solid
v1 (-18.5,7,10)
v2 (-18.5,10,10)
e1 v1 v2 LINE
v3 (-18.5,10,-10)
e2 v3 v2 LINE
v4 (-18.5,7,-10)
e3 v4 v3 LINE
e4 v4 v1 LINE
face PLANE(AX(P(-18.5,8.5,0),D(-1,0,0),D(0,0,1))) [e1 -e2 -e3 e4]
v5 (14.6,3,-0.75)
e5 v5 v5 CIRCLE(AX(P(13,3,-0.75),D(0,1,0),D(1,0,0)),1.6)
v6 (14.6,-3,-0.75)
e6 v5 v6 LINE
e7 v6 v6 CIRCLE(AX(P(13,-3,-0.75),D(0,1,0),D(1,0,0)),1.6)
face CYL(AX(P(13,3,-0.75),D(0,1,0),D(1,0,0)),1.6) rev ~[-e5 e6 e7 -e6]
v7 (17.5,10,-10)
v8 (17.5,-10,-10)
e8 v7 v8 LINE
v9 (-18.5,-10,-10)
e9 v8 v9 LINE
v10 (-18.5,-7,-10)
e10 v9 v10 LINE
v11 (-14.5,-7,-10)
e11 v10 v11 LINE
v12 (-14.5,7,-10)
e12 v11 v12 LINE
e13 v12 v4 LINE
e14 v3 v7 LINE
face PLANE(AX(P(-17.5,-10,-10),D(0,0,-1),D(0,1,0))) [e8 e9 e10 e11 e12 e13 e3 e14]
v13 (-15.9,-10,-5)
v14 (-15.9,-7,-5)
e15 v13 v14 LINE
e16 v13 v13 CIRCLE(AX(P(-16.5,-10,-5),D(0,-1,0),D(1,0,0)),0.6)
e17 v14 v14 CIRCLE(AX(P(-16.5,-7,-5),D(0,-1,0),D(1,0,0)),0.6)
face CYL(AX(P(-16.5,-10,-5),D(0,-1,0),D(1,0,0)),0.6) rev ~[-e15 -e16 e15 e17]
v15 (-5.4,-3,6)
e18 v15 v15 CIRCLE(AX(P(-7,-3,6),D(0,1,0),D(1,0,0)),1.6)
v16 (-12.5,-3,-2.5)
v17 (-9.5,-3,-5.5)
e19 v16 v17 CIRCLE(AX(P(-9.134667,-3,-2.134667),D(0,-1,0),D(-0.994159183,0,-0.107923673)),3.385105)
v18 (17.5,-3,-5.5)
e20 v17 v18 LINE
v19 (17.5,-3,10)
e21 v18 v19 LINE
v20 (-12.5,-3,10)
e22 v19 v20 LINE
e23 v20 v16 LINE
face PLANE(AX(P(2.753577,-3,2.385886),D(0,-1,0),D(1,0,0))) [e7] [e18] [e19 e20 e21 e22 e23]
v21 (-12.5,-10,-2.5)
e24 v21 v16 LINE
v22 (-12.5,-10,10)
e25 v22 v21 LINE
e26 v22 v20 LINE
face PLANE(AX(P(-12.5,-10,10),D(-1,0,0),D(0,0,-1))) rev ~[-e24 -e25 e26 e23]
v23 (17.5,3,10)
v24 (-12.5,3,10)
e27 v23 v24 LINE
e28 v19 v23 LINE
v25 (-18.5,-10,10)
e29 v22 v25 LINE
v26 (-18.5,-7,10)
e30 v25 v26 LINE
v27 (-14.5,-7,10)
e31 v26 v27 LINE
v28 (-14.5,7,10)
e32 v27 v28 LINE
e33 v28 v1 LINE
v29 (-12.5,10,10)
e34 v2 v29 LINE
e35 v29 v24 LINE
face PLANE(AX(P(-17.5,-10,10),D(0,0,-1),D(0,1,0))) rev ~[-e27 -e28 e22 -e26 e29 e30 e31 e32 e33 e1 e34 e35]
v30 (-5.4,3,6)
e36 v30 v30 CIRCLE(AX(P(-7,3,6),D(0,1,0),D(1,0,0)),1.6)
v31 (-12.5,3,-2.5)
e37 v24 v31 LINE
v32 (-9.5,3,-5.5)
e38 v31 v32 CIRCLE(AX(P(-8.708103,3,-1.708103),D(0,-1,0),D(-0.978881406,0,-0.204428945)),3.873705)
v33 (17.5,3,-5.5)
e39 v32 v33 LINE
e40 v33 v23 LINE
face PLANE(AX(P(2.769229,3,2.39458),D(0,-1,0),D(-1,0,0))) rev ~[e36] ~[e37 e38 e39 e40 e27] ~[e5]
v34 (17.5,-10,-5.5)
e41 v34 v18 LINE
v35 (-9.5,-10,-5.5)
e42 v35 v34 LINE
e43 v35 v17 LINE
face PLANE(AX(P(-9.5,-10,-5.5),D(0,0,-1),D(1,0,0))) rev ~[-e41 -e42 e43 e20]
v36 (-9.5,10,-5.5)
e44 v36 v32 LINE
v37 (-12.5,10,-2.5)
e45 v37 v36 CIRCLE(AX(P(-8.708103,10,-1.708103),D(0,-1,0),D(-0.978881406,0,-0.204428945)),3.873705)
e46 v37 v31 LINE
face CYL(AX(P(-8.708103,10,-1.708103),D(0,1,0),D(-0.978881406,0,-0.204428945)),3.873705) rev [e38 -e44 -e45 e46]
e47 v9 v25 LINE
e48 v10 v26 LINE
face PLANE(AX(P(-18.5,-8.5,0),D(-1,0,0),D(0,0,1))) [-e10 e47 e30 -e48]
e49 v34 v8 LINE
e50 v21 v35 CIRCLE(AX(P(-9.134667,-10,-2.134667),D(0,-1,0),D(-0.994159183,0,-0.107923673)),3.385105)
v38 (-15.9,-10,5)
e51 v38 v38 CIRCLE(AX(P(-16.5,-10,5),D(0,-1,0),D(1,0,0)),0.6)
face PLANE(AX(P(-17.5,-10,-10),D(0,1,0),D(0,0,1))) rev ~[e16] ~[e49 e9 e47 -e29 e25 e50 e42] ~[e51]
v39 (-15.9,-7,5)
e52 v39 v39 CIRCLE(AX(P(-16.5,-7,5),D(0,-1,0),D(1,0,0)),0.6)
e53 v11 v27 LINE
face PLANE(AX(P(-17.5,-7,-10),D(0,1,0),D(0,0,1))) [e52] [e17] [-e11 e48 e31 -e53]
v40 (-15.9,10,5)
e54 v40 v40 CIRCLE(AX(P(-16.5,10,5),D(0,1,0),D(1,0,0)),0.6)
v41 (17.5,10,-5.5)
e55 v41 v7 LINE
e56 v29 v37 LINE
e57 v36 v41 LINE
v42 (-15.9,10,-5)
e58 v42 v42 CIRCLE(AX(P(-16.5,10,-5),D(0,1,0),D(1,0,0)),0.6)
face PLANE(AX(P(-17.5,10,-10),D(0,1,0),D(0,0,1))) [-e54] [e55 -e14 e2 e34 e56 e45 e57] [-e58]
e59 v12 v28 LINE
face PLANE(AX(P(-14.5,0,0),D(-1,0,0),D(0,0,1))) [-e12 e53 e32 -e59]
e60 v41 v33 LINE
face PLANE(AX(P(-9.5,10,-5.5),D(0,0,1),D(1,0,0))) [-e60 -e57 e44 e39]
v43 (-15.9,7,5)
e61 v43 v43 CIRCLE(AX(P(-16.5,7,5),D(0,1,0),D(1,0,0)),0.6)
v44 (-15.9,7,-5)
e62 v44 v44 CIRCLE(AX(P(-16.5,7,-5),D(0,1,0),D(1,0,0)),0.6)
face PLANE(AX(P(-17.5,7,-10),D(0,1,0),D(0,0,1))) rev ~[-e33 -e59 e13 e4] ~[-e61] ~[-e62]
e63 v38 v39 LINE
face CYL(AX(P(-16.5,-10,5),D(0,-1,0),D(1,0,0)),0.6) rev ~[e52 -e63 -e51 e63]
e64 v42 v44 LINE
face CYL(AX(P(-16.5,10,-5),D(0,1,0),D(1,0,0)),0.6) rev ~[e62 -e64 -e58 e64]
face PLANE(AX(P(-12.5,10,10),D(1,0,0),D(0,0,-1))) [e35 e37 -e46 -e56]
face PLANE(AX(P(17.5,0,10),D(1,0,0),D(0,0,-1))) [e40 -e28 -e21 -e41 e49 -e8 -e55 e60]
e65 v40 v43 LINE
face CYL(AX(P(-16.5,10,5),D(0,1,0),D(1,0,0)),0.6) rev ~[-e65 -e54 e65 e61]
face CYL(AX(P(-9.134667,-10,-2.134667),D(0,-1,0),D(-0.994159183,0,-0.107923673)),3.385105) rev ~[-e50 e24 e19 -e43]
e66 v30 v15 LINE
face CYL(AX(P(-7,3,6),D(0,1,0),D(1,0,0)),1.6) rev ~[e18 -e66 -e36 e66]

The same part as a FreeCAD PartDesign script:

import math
import FreeCAD as App
import Part
import Sketcher

V = App.Vector
Q = App.Units.Quantity


def add_polygon(sketch, points):
    """Adds a closed chain of lines whose ends are joined by coincident constraints."""
    first, n = sketch.GeometryCount, len(points)
    for a, b in zip(points, points[1:] + points[:1]):
        sketch.addGeometry(Part.LineSegment(App.Vector(*a, 0), App.Vector(*b, 0)), False)
    for i in range(n):
        sketch.addConstraint(Sketcher.Constraint("Coincident", first + i, 2, first + (i + 1) % n, 1))

doc = App.newDocument("Part")
body = doc.addObject("PartDesign::Body", "Body")

sketch1 = body.newObject("Sketcher::SketchObject", "Sketch")
sketch1.AttachmentSupport = (doc.getObject("XZ_Plane"), [""])
sketch1.MapMode = "FlatFace"
add_polygon(sketch1, [(-18, -10), (-18, 10), (18, 10), (18, -10)])
sketch1.addConstraint(Sketcher.Constraint("Vertical", 0))
sketch1.addConstraint(Sketcher.Constraint("Horizontal", 1))
sketch1.addConstraint(Sketcher.Constraint("Vertical", 2))
sketch1.addConstraint(Sketcher.Constraint("Horizontal", 3))
sketch1.addConstraint(Sketcher.Constraint("Symmetric", 0, 2, 2, 2, -1, 1))
sketch1.addConstraint(Sketcher.Constraint("DistanceX", 1, 1, 1, 2, Q("35 mm")))
sketch1.addConstraint(Sketcher.Constraint("DistanceY", 0, 1, 0, 2, Q("20 mm")))
pad1 = body.newObject("PartDesign::Pad", "Pad")
pad1.Profile = sketch1
pad1.Length = 20
pad1.Midplane = True

sketch2 = body.newObject("Sketcher::SketchObject", "Sketch001")
sketch2.AttachmentSupport = (doc.getObject("XZ_Plane"), [""])
sketch2.MapMode = "FlatFace"
sketch2.AttachmentOffset = App.Placement(V(0, 0, -10), App.Rotation())
sketch2.addGeometry(Part.LineSegment(V(-12.5, -2.5, 0), V(-12.5, 10, 0)), False)
sketch2.addGeometry(Part.LineSegment(V(-12.5, 10, 0), V(17.5, 10, 0)), False)
sketch2.addGeometry(Part.LineSegment(V(17.5, 10, 0), V(17.5, -5.5, 0)), False)
sketch2.addGeometry(Part.LineSegment(V(17.5, -5.5, 0), V(-9.5, -5.5, 0)), False)
sketch2.addGeometry(Part.ArcOfCircle(Part.Circle(V(-8.7, -1.7, 0), V(0, 0, 1), 3.9), math.radians(-168), math.radians(-102)), False)
sketch2.addConstraint(Sketcher.Constraint("Coincident", 0, 2, 1, 1))
sketch2.addConstraint(Sketcher.Constraint("Coincident", 1, 2, 2, 1))
sketch2.addConstraint(Sketcher.Constraint("Coincident", 2, 2, 3, 1))
sketch2.addConstraint(Sketcher.Constraint("Coincident", 3, 2, 4, 2))
sketch2.addConstraint(Sketcher.Constraint("Coincident", 4, 1, 0, 1))
sketch2.addConstraint(Sketcher.Constraint("Vertical", 0))
sketch2.addConstraint(Sketcher.Constraint("Horizontal", 1))
sketch2.addConstraint(Sketcher.Constraint("Vertical", 2))
sketch2.addConstraint(Sketcher.Constraint("Horizontal", 3))
sketch2.addConstraint(Sketcher.Constraint("DistanceX", 1, 1, 1, 2, Q("30 mm")))
sketch2.addConstraint(Sketcher.Constraint("DistanceX", 3, 2, 3, 1, Q("27 mm")))
sketch2.addConstraint(Sketcher.Constraint("DistanceY", 0, 1, 0, 2, Q("12.5 mm")))
sketch2.addConstraint(Sketcher.Constraint("DistanceY", 2, 2, 2, 1, Q("15.5 mm")))
sketch2.addConstraint(Sketcher.Constraint("DistanceY", -1, 1, 0, 2, Q("10 mm")))
sketch2.addConstraint(Sketcher.Constraint("DistanceX", 0, 2, -1, 1, Q("12.5 mm")))
sketch2.addConstraint(Sketcher.Constraint("Radius", 4, Q("3.873705 mm")))
pocket1 = body.newObject("PartDesign::Pocket", "Pocket")
pocket1.Profile = sketch2
pocket1.Length = 7
pocket1.Reversed = True

sketch3 = body.newObject("Sketcher::SketchObject", "Sketch002")
sketch3.AttachmentSupport = (doc.getObject("XZ_Plane"), [""])
sketch3.MapMode = "FlatFace"
sketch3.AttachmentOffset = App.Placement(V(0, 0, 10), App.Rotation())
sketch3.addGeometry(Part.LineSegment(V(-12.5, 10, 0), V(-12.5, -2.5, 0)), False)
sketch3.addGeometry(Part.ArcOfCircle(Part.Circle(V(-9.1, -2.1, 0), V(0, 0, 1), 3.4), math.radians(-174), math.radians(-96)), False)
sketch3.addGeometry(Part.LineSegment(V(-9.5, -5.5, 0), V(17.5, -5.5, 0)), False)
sketch3.addGeometry(Part.LineSegment(V(17.5, -5.5, 0), V(17.5, 10, 0)), False)
sketch3.addGeometry(Part.LineSegment(V(17.5, 10, 0), V(-12.5, 10, 0)), False)
sketch3.addConstraint(Sketcher.Constraint("Coincident", 0, 2, 1, 1))
sketch3.addConstraint(Sketcher.Constraint("Coincident", 1, 2, 2, 1))
sketch3.addConstraint(Sketcher.Constraint("Coincident", 2, 2, 3, 1))
sketch3.addConstraint(Sketcher.Constraint("Coincident", 3, 2, 4, 1))
sketch3.addConstraint(Sketcher.Constraint("Coincident", 4, 2, 0, 1))
sketch3.addConstraint(Sketcher.Constraint("Vertical", 0))
sketch3.addConstraint(Sketcher.Constraint("Horizontal", 2))
sketch3.addConstraint(Sketcher.Constraint("Vertical", 3))
sketch3.addConstraint(Sketcher.Constraint("Horizontal", 4))
sketch3.addConstraint(Sketcher.Constraint("DistanceX", 2, 1, 2, 2, Q("27 mm")))
sketch3.addConstraint(Sketcher.Constraint("DistanceX", 4, 2, 4, 1, Q("30 mm")))
sketch3.addConstraint(Sketcher.Constraint("DistanceY", 0, 2, 0, 1, Q("12.5 mm")))
sketch3.addConstraint(Sketcher.Constraint("DistanceY", 3, 1, 3, 2, Q("15.5 mm")))
sketch3.addConstraint(Sketcher.Constraint("DistanceY", -1, 1, 3, 2, Q("10 mm")))
sketch3.addConstraint(Sketcher.Constraint("DistanceX", 0, 2, -1, 1, Q("12.5 mm")))
sketch3.addConstraint(Sketcher.Constraint("Radius", 1, Q("3.385105 mm")))
pocket2 = body.newObject("PartDesign::Pocket", "Pocket001")
pocket2.Profile = sketch3
pocket2.Length = 7

sketch4 = body.newObject("Sketcher::SketchObject", "Sketch003")
sketch4.AttachmentSupport = (doc.getObject("XZ_Plane"), [""])
sketch4.MapMode = "FlatFace"
sketch4.AttachmentOffset = App.Placement(V(0, 0, -3), App.Rotation())
sketch4.addGeometry(Part.Circle(V(-7, 6, 0), V(0, 0, 1), 1.6), False)
sketch4.addGeometry(Part.Circle(V(13, -0.8, 0), V(0, 0, 1), 1.6), False)
sketch4.addConstraint(Sketcher.Constraint("Equal", 0, 1))
sketch4.addConstraint(Sketcher.Constraint("Diameter", 0, Q("3.2 mm")))
sketch4.addConstraint(Sketcher.Constraint("DistanceX", 0, 3, -1, 1, Q("7 mm")))
sketch4.addConstraint(Sketcher.Constraint("DistanceY", -1, 1, 0, 3, Q("6 mm")))
sketch4.addConstraint(Sketcher.Constraint("DistanceX", -1, 1, 1, 3, Q("13 mm")))
sketch4.addConstraint(Sketcher.Constraint("DistanceY", 1, 3, -1, 1, Q("0.75 mm")))
pocket3 = body.newObject("PartDesign::Pocket", "Pocket002")
pocket3.Profile = sketch4
pocket3.Length = 7
pocket3.Reversed = True

sketch5 = body.newObject("Sketcher::SketchObject", "Sketch004")
sketch5.AttachmentSupport = (doc.getObject("YZ_Plane"), [""])
sketch5.MapMode = "FlatFace"
sketch5.AttachmentOffset = App.Placement(V(0, 0, -17.5), App.Rotation())
add_polygon(sketch5, [(7, -10), (-7, -10), (-7, 10), (7, 10)])
sketch5.addConstraint(Sketcher.Constraint("Horizontal", 0))
sketch5.addConstraint(Sketcher.Constraint("Vertical", 1))
sketch5.addConstraint(Sketcher.Constraint("Horizontal", 2))
sketch5.addConstraint(Sketcher.Constraint("Vertical", 3))
sketch5.addConstraint(Sketcher.Constraint("Symmetric", 0, 2, 2, 2, -1, 1))
sketch5.addConstraint(Sketcher.Constraint("DistanceX", 0, 2, 0, 1, Q("14 mm")))
sketch5.addConstraint(Sketcher.Constraint("DistanceY", 1, 1, 1, 2, Q("20 mm")))
pocket4 = body.newObject("PartDesign::Pocket", "Pocket003")
pocket4.Profile = sketch5
pocket4.Length = 3
pocket4.Reversed = True

sketch6 = body.newObject("Sketcher::SketchObject", "Sketch005")
sketch6.AttachmentSupport = (doc.getObject("XZ_Plane"), [""])
sketch6.MapMode = "FlatFace"
sketch6.AttachmentOffset = App.Placement(V(0, 0, -10), App.Rotation())
sketch6.addGeometry(Part.Circle(V(-16.5, -5, 0), V(0, 0, 1), 0.6), False)
sketch6.addGeometry(Part.Circle(V(-16.5, 5, 0), V(0, 0, 1), 0.6), False)
sketch6.addConstraint(Sketcher.Constraint("Equal", 0, 1))
sketch6.addConstraint(Sketcher.Constraint("Symmetric", 0, 3, 1, 3, -1))
sketch6.addConstraint(Sketcher.Constraint("Diameter", 0, Q("1.2 mm")))
sketch6.addConstraint(Sketcher.Constraint("DistanceY", 0, 3, -1, 1, Q("5 mm")))
sketch6.addConstraint(Sketcher.Constraint("DistanceX", 0, 3, -1, 1, Q("16.5 mm")))
pocket5 = body.newObject("PartDesign::Pocket", "Pocket004")
pocket5.Profile = sketch6
pocket5.Length = 3
pocket5.Reversed = True

sketch7 = body.newObject("Sketcher::SketchObject", "Sketch006")
sketch7.AttachmentSupport = (doc.getObject("XZ_Plane"), [""])
sketch7.MapMode = "FlatFace"
sketch7.AttachmentOffset = App.Placement(V(0, 0, 10), App.Rotation())
sketch7.addGeometry(Part.Circle(V(-16.5, 5, 0), V(0, 0, 1), 0.6), False)
sketch7.addGeometry(Part.Circle(V(-16.5, -5, 0), V(0, 0, 1), 0.6), False)
sketch7.addConstraint(Sketcher.Constraint("Equal", 0, 1))
sketch7.addConstraint(Sketcher.Constraint("Symmetric", 0, 3, 1, 3, -1))
sketch7.addConstraint(Sketcher.Constraint("Diameter", 0, Q("1.2 mm")))
sketch7.addConstraint(Sketcher.Constraint("DistanceY", -1, 1, 0, 3, Q("5 mm")))
sketch7.addConstraint(Sketcher.Constraint("DistanceX", 0, 3, -1, 1, Q("16.5 mm")))
pocket6 = body.newObject("PartDesign::Pocket", "Pocket005")
pocket6.Profile = sketch7
pocket6.Length = 3

sketch8 = body.newObject("Sketcher::SketchObject", "Sketch007")
sketch8.AttachmentSupport = (doc.getObject("YZ_Plane"), [""])
sketch8.MapMode = "FlatFace"
sketch8.AttachmentOffset = App.Placement(V(0, 0, -17.5), App.Rotation())
add_polygon(sketch8, [(10, -10), (7, -10), (7, 10), (10, 10)])
sketch8.addConstraint(Sketcher.Constraint("Horizontal", 0))
sketch8.addConstraint(Sketcher.Constraint("Vertical", 1))
sketch8.addConstraint(Sketcher.Constraint("Horizontal", 2))
sketch8.addConstraint(Sketcher.Constraint("Vertical", 3))
sketch8.addConstraint(Sketcher.Constraint("DistanceX", 0, 2, 0, 1, Q("3 mm")))
sketch8.addConstraint(Sketcher.Constraint("DistanceY", 1, 1, 1, 2, Q("20 mm")))
sketch8.addConstraint(Sketcher.Constraint("DistanceX", -1, 1, 0, 2, Q("7 mm")))
sketch8.addConstraint(Sketcher.Constraint("DistanceY", 0, 2, -1, 1, Q("10 mm")))
pad2 = body.newObject("PartDesign::Pad", "Pad001")
pad2.Profile = sketch8
pad2.Length = 1
pad2.Reversed = True

sketch9 = body.newObject("Sketcher::SketchObject", "Sketch008")
sketch9.AttachmentSupport = (doc.getObject("YZ_Plane"), [""])
sketch9.MapMode = "FlatFace"
sketch9.AttachmentOffset = App.Placement(V(0, 0, -17.5), App.Rotation())
add_polygon(sketch9, [(-7, -10), (-10, -10), (-10, 10), (-7, 10)])
sketch9.addConstraint(Sketcher.Constraint("Horizontal", 0))
sketch9.addConstraint(Sketcher.Constraint("Vertical", 1))
sketch9.addConstraint(Sketcher.Constraint("Horizontal", 2))
sketch9.addConstraint(Sketcher.Constraint("Vertical", 3))
sketch9.addConstraint(Sketcher.Constraint("DistanceX", 0, 2, 0, 1, Q("3 mm")))
sketch9.addConstraint(Sketcher.Constraint("DistanceY", 1, 1, 1, 2, Q("20 mm")))
sketch9.addConstraint(Sketcher.Constraint("DistanceX", 0, 2, -1, 1, Q("10 mm")))
sketch9.addConstraint(Sketcher.Constraint("DistanceY", 0, 2, -1, 1, Q("10 mm")))
pad3 = body.newObject("PartDesign::Pad", "Pad002")
pad3.Profile = sketch9
pad3.Length = 1
pad3.Reversed = True

doc.recompute()
